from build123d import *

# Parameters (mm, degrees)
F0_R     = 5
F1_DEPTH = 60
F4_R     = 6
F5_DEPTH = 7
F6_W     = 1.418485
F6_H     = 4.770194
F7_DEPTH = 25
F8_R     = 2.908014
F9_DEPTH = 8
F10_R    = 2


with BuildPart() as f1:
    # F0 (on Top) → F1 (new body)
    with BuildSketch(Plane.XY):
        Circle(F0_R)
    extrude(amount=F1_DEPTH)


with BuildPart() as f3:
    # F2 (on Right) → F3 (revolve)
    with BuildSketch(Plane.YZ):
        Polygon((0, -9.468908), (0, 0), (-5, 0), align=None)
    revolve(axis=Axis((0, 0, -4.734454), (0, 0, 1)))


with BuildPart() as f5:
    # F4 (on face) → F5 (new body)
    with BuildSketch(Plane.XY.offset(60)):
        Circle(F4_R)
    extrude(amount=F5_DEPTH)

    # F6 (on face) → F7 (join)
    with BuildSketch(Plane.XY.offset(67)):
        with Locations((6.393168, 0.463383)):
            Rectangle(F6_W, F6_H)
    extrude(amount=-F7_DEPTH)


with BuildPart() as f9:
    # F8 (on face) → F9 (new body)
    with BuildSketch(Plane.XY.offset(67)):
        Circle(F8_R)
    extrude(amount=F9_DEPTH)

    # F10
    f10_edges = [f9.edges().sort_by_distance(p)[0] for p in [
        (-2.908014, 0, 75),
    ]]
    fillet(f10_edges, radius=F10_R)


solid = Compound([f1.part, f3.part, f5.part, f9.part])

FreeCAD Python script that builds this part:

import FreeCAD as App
import Part
import Sketcher


def edges_at(feature, points):
    """Names of the edges that pass closest to the given points."""
    edges = feature.Shape.Edges
    near = lambda p: min(range(len(edges)), key=lambda i: edges[i].distToShape(Part.Vertex(*p))[0])
    return sorted({f"Edge{near(p) + 1}" for p in points})


def add_polygon(sketch, points):
    """Adds a closed chain of lines whose ends are joined by coincident constraints."""
    first, n = sketch.GeometryCount, len(points)
    for a, b in zip(points, points[1:] + points[:1]):
        sketch.addGeometry(Part.LineSegment(App.Vector(*a, 0), App.Vector(*b, 0)), False)
    for i in range(n):
        sketch.addConstraint(Sketcher.Constraint("Coincident", first + i, 2, first + (i + 1) % n, 1))

doc = App.newDocument("Part")
body = doc.addObject("PartDesign::Body", "Body")

# Sketch on XY plane
sketch1 = doc.addObject("Sketcher::SketchObject", "Sketch")
body.addObject(sketch1)
sketch1.AttachmentSupport = (doc.XY_Plane, [""])
sketch1.MapMode = "FlatFace"
sketch1.addGeometry(Part.Circle(App.Vector(0, 0, 0), App.Vector(0, 0, 1), 5), False)
sketch1.addConstraint(Sketcher.Constraint("Coincident", 0, 3, -1, 1))
sketch1.addConstraint(Sketcher.Constraint("Diameter", 0, 10.0))
pad1 = doc.addObject("PartDesign::Pad", "Pad")
body.addObject(pad1)
pad1.Profile = sketch1
pad1.Length = 60
body2 = doc.addObject("PartDesign::Body", "Body001")

# Sketch on YZ plane
sketch2 = doc.addObject("Sketcher::SketchObject", "Sketch001")
body2.addObject(sketch2)
sketch2.AttachmentSupport = (doc.getObject("YZ_Plane001"), [""])
sketch2.MapMode = "FlatFace"
add_polygon(sketch2, [(0, -9), (0, 0), (-5, 0)])  # lines 0-2
sketch2.addConstraint(Sketcher.Constraint("Vertical", 0))
sketch2.addConstraint(Sketcher.Constraint("Horizontal", 1))
sketch2.addConstraint(Sketcher.Constraint("Coincident", 0, 2, -1, 1))
sketch2.addConstraint(Sketcher.Constraint("DistanceX", 1, 2, 1, 1, 5.0))
sketch2.addConstraint(Sketcher.Constraint("DistanceY", 0, 1, 0, 2, 9.468908))
revolution = doc.addObject("PartDesign::Revolution", "Revolution")
body2.addObject(revolution)
revolution.Profile = sketch2
revolution.ReferenceAxis = (sketch2, ["V_Axis"])
revolution.Angle = 360
body3 = doc.addObject("PartDesign::Body", "Body002")

# Sketch on XY plane
sketch3 = doc.addObject("Sketcher::SketchObject", "Sketch002")
body3.addObject(sketch3)
sketch3.AttachmentSupport = (doc.getObject("XY_Plane002"), [""])
sketch3.MapMode = "FlatFace"
sketch3.AttachmentOffset = App.Placement(App.Vector(0, 0, 60), App.Rotation())
sketch3.addGeometry(Part.Circle(App.Vector(0, 0, 0), App.Vector(0, 0, 1), 6), False)
sketch3.addConstraint(Sketcher.Constraint("Coincident", 0, 3, -1, 1))
sketch3.addConstraint(Sketcher.Constraint("Diameter", 0, 12.0))
pad2 = doc.addObject("PartDesign::Pad", "Pad001")
body3.addObject(pad2)
pad2.Profile = sketch3
pad2.Length = 7

# Sketch on XY plane
sketch4 = doc.addObject("Sketcher::SketchObject", "Sketch003")
body3.addObject(sketch4)
sketch4.AttachmentSupport = (doc.getObject("XY_Plane002"), [""])
sketch4.MapMode = "FlatFace"
sketch4.AttachmentOffset = App.Placement(App.Vector(0, 0, 67), App.Rotation())
add_polygon(sketch4, [(5.7, 2.8), (5.7, -1.9), (7.1, -1.9), (7.1, 2.8)])  # lines 0-3
sketch4.addConstraint(Sketcher.Constraint("Vertical", 0))
sketch4.addConstraint(Sketcher.Constraint("Horizontal", 1))
sketch4.addConstraint(Sketcher.Constraint("Vertical", 2))
sketch4.addConstraint(Sketcher.Constraint("Horizontal", 3))
sketch4.addConstraint(Sketcher.Constraint("DistanceX", 1, 1, 1, 2, 1.418485))
sketch4.addConstraint(Sketcher.Constraint("DistanceY", 0, 2, 0, 1, 4.770194))
sketch4.addConstraint(Sketcher.Constraint("DistanceX", -1, 1, 1, 2, 7.102411))
sketch4.addConstraint(Sketcher.Constraint("DistanceY", -1, 1, 2, 2, 2.84848))
pad3 = doc.addObject("PartDesign::Pad", "Pad002")
body3.addObject(pad3)
pad3.Profile = sketch4
pad3.Length = 25
pad3.Reversed = True
body4 = doc.addObject("PartDesign::Body", "Body003")

# Sketch on XY plane
sketch5 = doc.addObject("Sketcher::SketchObject", "Sketch004")
body4.addObject(sketch5)
sketch5.AttachmentSupport = (doc.getObject("XY_Plane003"), [""])
sketch5.MapMode = "FlatFace"
sketch5.AttachmentOffset = App.Placement(App.Vector(0, 0, 67), App.Rotation())
sketch5.addGeometry(Part.Circle(App.Vector(0, 0, 0), App.Vector(0, 0, 1), 2.9), False)
sketch5.addConstraint(Sketcher.Constraint("Coincident", 0, 3, -1, 1))
sketch5.addConstraint(Sketcher.Constraint("Diameter", 0, 5.816028))
pad4 = doc.addObject("PartDesign::Pad", "Pad003")
body4.addObject(pad4)
pad4.Profile = sketch5
pad4.Length = 8
doc.recompute()

fillet = doc.addObject("PartDesign::Fillet", "Fillet")
body4.addObject(fillet)
fillet.Base = (pad4, edges_at(pad4, [(-2.908, 0, 75)]))
fillet.Radius = 2

doc.recompute()
